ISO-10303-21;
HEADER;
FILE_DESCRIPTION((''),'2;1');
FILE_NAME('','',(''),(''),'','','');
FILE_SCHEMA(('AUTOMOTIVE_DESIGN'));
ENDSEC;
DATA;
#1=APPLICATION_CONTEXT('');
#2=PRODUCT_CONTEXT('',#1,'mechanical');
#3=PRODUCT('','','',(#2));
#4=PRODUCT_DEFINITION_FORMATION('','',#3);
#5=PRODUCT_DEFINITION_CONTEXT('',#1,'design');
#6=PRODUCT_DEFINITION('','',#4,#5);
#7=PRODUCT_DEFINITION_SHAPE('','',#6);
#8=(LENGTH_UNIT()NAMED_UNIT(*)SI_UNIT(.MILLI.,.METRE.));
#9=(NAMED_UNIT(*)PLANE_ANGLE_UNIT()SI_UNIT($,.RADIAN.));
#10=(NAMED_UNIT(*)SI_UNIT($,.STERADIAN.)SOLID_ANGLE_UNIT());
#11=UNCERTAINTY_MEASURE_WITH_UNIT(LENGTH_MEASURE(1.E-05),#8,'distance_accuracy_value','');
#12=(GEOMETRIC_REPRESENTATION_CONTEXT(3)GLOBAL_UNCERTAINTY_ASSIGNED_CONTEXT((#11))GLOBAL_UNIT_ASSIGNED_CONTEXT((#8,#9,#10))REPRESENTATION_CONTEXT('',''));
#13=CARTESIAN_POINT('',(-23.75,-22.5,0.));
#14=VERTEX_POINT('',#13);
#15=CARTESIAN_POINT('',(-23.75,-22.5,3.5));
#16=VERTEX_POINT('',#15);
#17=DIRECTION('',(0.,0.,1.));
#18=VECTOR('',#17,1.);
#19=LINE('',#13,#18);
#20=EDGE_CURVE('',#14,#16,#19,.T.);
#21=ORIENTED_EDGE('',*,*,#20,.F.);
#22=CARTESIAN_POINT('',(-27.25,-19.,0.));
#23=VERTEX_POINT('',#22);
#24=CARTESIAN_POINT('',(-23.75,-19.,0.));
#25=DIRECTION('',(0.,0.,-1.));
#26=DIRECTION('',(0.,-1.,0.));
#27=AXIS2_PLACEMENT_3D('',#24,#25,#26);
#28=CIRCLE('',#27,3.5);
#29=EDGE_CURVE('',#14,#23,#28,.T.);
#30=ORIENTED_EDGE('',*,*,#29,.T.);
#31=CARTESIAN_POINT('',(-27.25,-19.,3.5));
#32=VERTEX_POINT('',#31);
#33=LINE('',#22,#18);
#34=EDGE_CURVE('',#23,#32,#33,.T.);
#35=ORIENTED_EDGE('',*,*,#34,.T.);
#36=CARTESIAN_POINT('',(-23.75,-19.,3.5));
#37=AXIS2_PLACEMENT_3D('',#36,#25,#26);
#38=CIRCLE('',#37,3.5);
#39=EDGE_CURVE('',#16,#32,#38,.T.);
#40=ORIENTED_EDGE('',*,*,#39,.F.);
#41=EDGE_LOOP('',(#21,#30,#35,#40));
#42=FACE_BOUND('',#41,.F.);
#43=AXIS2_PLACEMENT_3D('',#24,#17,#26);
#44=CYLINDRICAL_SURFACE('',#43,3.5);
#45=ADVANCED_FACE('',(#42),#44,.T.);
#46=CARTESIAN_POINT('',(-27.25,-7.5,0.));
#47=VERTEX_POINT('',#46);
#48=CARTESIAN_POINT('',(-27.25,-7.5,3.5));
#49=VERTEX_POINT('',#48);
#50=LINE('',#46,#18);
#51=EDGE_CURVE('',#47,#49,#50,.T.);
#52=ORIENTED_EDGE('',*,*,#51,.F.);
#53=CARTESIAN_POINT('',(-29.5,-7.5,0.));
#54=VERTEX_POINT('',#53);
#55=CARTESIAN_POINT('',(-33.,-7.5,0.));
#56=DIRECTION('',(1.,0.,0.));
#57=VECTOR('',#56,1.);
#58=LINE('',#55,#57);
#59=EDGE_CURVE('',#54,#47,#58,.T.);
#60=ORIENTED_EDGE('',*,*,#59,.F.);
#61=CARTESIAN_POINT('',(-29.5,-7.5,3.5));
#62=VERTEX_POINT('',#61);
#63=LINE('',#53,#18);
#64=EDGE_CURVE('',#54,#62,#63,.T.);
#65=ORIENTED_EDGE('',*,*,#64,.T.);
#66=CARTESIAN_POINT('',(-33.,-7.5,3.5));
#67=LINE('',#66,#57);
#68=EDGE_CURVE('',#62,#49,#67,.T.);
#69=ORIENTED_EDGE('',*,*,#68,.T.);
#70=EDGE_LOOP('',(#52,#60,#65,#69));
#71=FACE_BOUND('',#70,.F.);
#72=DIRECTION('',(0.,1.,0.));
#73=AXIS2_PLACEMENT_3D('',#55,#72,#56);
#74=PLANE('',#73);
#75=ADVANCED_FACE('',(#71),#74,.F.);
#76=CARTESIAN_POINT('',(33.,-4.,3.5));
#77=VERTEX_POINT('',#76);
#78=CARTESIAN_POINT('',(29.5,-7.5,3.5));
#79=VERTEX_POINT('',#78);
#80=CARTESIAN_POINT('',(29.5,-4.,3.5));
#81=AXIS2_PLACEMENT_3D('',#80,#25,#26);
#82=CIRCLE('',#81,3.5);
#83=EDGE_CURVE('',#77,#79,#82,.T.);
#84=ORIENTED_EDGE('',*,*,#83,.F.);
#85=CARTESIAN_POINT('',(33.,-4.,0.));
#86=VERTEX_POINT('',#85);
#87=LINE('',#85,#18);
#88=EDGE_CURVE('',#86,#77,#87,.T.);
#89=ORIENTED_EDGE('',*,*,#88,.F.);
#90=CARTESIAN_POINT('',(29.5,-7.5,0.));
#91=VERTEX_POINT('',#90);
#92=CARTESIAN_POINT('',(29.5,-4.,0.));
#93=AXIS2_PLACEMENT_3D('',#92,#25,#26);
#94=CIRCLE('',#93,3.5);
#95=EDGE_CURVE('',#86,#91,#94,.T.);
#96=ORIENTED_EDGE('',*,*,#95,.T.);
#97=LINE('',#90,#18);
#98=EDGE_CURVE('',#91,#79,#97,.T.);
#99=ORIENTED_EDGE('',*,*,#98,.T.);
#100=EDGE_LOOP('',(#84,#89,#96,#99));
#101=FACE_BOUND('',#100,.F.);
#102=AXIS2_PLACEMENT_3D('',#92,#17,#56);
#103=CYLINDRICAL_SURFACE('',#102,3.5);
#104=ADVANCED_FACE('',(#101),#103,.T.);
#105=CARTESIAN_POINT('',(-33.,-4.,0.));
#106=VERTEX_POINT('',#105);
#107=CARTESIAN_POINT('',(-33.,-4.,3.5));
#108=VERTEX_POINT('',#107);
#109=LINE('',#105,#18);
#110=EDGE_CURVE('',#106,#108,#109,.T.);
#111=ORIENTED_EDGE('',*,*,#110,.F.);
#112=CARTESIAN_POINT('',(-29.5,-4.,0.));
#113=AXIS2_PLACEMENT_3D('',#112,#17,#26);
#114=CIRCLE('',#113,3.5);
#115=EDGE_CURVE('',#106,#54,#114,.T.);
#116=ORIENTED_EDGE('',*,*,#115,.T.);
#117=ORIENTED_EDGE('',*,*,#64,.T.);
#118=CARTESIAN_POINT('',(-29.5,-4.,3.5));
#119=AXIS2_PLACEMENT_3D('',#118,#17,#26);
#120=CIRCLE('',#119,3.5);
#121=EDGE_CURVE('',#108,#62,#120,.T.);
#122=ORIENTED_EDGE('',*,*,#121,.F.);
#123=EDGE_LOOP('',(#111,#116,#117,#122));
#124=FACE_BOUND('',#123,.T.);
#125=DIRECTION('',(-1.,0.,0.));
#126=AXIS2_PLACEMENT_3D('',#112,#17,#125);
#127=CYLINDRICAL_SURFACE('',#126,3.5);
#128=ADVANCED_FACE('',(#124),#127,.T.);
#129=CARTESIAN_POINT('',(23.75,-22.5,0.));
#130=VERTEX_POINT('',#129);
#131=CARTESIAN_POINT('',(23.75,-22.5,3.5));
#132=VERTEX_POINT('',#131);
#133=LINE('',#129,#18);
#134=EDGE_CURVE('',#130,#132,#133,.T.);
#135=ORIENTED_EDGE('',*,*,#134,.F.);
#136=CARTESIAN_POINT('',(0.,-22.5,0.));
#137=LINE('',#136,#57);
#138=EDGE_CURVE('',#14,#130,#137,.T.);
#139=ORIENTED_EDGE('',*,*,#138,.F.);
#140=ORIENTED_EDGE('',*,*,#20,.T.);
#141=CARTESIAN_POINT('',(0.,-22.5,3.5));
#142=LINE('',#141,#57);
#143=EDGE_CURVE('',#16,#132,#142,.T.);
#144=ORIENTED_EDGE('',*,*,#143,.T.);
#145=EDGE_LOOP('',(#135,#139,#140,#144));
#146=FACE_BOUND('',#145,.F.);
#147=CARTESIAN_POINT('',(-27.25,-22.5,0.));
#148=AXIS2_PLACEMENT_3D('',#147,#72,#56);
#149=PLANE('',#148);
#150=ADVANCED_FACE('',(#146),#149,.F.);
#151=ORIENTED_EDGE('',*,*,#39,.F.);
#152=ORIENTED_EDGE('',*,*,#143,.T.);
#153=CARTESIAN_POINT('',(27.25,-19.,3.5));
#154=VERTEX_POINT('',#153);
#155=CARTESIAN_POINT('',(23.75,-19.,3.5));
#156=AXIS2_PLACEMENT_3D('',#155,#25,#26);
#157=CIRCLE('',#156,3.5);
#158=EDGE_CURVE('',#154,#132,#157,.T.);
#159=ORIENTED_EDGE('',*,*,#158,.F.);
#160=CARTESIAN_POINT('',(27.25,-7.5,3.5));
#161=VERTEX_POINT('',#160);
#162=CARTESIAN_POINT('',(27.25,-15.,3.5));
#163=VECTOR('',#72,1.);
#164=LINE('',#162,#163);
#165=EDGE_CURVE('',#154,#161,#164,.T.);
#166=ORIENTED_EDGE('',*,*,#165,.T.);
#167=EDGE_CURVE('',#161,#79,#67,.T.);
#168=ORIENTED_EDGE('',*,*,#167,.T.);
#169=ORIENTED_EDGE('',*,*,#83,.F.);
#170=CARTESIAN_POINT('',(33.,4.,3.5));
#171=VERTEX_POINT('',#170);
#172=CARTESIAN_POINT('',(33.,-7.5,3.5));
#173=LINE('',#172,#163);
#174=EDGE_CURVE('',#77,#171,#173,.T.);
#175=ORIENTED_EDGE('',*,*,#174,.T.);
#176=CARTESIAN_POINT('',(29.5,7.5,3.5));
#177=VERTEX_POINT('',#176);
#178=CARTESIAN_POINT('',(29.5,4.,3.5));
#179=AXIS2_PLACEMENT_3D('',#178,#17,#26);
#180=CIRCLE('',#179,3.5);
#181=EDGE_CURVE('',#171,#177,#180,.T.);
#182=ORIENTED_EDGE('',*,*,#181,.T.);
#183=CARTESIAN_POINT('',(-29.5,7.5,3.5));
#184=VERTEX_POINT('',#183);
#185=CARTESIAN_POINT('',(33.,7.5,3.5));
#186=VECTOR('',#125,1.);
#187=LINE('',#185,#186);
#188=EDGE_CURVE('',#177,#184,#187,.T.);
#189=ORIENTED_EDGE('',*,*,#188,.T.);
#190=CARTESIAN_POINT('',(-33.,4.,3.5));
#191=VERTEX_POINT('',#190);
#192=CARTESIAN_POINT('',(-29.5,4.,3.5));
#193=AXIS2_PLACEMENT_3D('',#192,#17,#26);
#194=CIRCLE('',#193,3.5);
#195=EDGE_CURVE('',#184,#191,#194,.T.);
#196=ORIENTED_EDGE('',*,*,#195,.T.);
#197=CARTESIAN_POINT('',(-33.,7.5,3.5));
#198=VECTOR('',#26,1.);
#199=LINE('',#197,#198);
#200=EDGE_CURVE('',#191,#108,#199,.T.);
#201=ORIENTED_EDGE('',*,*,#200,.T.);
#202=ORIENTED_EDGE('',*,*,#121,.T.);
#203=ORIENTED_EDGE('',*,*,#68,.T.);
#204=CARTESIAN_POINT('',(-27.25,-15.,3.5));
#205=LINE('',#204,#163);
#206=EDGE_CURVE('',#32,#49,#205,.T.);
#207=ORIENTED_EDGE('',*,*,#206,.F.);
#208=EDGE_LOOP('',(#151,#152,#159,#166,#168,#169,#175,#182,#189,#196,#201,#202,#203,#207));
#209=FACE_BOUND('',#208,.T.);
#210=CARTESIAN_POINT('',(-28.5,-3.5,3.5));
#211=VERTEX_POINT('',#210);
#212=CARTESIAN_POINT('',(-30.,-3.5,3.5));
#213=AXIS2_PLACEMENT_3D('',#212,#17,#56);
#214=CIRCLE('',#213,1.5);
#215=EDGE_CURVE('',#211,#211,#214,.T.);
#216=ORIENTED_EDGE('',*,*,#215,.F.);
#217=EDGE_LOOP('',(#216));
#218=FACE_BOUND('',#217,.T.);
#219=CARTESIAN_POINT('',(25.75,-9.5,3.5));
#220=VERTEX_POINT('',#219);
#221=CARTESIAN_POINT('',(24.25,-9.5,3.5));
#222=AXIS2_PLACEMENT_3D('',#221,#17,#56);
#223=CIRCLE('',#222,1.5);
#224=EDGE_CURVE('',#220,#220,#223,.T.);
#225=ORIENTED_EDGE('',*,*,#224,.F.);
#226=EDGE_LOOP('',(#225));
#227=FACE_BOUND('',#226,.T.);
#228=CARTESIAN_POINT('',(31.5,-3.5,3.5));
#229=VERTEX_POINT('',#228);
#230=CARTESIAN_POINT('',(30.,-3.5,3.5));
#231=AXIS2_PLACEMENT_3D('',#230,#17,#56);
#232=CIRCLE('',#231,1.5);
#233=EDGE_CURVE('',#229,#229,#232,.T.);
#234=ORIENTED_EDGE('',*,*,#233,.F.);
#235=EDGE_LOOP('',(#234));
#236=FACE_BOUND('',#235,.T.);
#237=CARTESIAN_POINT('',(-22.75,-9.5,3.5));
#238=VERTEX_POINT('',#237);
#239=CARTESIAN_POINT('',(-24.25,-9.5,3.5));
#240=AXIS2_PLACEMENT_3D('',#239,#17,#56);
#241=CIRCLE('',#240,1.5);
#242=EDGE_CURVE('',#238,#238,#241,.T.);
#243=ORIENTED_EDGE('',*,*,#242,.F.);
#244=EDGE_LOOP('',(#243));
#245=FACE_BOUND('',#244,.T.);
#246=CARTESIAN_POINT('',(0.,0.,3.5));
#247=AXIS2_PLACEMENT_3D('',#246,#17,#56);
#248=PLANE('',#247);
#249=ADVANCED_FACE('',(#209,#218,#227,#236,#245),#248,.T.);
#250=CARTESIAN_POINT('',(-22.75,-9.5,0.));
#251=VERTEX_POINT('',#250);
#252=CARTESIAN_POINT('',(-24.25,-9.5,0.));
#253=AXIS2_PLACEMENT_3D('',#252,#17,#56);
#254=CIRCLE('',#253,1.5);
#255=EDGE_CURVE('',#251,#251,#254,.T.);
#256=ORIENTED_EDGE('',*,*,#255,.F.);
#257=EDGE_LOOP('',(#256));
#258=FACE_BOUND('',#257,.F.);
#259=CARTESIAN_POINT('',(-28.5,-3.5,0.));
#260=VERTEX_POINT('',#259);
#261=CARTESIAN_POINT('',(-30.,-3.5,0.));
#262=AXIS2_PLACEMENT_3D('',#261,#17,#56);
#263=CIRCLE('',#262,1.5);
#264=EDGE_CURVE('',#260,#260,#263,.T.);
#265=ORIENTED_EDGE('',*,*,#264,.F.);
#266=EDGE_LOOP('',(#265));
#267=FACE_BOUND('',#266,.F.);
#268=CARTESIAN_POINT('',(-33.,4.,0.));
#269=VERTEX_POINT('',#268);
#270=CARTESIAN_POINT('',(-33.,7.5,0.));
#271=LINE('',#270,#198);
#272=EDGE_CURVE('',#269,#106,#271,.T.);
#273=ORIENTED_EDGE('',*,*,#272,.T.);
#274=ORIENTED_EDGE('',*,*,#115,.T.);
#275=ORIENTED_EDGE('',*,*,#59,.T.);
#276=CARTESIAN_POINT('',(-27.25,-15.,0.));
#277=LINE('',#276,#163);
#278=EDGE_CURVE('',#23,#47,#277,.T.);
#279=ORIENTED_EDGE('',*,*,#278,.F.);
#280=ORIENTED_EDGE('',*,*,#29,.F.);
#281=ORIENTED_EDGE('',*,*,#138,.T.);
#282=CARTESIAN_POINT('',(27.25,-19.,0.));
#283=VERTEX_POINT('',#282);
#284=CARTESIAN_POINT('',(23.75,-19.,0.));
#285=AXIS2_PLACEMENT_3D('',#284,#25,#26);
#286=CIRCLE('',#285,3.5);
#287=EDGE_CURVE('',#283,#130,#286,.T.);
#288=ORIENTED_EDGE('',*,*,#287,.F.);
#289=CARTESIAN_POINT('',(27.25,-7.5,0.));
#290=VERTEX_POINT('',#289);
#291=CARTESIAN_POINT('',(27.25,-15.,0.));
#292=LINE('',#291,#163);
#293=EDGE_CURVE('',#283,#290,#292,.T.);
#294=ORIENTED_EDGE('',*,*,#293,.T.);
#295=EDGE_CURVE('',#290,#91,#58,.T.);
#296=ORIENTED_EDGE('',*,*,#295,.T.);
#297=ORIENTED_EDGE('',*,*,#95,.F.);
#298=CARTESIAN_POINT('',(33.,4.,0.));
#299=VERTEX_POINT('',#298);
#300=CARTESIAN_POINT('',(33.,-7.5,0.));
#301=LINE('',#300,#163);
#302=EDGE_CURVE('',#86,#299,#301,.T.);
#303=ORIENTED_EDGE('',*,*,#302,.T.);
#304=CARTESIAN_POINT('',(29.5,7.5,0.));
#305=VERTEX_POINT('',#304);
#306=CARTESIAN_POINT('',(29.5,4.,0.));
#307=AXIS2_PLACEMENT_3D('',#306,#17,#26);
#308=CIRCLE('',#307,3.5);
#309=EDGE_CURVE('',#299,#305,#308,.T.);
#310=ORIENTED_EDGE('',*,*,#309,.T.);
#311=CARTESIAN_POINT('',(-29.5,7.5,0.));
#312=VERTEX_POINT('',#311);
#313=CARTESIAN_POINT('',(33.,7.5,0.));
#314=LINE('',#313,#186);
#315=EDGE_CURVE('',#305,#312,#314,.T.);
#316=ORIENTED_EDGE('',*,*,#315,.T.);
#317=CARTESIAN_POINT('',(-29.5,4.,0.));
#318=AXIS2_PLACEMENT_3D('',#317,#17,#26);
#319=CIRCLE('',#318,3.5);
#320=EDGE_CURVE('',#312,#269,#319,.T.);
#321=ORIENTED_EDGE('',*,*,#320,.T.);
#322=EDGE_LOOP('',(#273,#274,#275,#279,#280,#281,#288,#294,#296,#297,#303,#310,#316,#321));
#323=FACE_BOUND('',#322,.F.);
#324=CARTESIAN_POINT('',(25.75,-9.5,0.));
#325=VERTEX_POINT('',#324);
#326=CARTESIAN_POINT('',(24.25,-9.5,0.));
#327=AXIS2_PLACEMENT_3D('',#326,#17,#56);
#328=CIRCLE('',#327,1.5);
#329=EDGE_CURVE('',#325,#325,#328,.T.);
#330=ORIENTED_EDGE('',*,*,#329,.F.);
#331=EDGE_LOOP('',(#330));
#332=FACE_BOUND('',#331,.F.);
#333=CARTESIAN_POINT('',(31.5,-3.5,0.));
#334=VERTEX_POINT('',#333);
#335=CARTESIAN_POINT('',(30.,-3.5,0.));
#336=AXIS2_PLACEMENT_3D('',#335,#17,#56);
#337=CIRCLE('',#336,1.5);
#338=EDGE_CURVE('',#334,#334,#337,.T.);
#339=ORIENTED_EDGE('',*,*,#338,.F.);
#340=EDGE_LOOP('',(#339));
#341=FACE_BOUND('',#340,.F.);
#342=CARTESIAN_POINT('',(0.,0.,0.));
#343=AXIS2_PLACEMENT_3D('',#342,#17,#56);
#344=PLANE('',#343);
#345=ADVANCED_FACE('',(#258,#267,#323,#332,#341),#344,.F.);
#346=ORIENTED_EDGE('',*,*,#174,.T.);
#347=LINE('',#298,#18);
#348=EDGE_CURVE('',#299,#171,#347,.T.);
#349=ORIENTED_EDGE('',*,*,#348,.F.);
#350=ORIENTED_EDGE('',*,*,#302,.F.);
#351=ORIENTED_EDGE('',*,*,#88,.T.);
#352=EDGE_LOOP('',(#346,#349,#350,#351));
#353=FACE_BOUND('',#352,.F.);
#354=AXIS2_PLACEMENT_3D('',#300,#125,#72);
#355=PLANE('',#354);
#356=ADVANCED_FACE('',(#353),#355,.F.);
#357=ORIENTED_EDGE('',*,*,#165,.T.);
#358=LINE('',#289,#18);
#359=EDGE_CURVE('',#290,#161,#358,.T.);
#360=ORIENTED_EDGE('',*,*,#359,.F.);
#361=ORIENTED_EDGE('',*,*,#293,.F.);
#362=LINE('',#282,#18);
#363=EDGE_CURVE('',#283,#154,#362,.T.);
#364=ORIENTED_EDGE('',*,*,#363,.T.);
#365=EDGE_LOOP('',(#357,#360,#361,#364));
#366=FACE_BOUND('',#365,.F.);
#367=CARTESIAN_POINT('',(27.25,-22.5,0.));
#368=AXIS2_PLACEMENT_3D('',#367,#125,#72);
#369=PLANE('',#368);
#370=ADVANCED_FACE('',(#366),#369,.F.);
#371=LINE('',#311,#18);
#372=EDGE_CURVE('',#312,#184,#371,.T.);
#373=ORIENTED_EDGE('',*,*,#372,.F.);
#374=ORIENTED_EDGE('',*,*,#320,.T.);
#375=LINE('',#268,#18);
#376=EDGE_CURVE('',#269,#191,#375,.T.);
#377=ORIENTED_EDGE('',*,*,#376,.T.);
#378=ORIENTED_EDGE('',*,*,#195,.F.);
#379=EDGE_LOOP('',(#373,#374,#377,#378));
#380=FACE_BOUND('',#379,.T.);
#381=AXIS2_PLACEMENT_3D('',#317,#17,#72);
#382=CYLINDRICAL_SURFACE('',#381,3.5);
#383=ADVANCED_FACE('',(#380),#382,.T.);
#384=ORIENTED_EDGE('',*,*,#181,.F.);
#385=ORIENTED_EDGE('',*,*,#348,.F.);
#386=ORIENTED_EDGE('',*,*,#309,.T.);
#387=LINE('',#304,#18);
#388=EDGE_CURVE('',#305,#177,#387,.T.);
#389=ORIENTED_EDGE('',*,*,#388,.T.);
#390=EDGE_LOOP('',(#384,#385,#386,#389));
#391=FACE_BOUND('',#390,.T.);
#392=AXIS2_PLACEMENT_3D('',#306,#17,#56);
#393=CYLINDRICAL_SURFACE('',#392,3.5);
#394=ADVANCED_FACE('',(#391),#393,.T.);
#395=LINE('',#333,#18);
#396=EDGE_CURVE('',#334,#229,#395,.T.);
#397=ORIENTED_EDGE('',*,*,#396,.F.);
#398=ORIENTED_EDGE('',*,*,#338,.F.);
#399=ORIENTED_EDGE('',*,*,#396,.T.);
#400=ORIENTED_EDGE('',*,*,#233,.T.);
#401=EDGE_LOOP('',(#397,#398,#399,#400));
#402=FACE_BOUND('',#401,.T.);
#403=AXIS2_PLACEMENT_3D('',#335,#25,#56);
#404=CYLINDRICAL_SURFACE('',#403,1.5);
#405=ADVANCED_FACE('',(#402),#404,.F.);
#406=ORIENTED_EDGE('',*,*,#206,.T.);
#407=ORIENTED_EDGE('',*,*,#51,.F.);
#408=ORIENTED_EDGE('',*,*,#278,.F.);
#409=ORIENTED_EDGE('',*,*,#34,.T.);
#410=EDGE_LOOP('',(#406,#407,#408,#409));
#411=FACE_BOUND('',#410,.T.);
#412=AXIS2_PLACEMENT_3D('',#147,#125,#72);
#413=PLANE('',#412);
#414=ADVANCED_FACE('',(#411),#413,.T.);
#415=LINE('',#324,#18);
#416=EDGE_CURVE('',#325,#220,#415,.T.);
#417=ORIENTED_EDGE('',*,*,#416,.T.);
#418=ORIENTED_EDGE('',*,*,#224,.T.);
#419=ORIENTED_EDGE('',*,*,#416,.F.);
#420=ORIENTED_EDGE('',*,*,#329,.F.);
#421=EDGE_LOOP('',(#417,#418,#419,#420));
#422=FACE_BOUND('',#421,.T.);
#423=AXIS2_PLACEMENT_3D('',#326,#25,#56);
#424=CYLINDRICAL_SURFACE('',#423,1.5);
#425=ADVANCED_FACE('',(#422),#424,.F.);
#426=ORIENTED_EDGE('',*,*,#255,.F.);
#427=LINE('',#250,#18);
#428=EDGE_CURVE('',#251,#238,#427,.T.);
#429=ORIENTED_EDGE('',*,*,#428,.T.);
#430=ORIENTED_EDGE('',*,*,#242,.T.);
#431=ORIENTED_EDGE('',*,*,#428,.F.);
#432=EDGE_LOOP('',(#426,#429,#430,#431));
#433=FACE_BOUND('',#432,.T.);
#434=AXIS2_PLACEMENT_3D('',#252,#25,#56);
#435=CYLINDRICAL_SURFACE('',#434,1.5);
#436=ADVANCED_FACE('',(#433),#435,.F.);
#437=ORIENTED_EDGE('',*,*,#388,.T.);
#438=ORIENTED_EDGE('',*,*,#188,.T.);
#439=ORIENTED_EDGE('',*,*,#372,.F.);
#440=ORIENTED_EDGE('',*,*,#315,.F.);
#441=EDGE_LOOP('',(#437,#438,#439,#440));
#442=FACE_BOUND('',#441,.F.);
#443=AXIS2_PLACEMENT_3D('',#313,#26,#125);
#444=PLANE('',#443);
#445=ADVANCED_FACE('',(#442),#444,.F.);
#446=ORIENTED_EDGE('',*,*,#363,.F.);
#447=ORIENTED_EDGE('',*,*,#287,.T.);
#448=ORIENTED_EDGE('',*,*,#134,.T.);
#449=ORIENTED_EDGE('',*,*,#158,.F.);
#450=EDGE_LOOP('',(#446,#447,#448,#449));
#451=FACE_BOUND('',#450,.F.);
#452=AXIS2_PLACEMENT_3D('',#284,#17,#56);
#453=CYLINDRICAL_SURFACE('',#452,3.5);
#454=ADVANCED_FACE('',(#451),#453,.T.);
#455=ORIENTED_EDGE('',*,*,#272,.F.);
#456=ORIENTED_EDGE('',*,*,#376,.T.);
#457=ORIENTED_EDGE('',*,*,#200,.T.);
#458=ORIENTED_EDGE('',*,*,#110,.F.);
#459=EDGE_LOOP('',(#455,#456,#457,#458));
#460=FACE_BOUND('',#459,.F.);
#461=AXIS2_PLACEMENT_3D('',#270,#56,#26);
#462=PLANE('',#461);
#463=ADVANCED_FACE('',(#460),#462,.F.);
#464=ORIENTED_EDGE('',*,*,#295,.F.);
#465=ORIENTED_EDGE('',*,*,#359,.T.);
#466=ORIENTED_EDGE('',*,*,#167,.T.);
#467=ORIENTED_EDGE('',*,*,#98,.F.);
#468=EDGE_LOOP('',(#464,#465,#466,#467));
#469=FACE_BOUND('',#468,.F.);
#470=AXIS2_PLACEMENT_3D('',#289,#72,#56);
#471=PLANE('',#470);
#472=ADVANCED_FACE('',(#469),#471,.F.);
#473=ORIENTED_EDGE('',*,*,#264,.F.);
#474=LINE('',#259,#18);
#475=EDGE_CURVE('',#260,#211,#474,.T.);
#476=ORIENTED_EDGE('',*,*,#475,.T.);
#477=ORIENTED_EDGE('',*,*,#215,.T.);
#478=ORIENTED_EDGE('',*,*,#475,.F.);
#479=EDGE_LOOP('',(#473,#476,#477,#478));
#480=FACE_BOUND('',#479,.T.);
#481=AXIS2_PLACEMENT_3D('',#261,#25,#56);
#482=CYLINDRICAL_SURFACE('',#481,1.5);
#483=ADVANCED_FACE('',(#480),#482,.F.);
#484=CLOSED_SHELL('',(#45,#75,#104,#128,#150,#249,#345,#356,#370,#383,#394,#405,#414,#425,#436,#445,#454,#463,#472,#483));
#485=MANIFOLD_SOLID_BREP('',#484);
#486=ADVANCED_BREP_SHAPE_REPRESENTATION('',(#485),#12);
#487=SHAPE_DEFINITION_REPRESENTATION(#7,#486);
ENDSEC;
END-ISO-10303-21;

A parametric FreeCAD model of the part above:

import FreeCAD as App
import Part
import Sketcher
from FreeCAD import Vector


def edges_at(feature, points):
    """Names of the edges that pass closest to the given points."""
    edges = feature.Shape.Edges
    near = lambda p: min(range(len(edges)), key=lambda i: edges[i].distToShape(Part.Vertex(*p))[0])
    return sorted({f"Edge{near(p) + 1}" for p in points})


def add_polygon(sketch, points):
    """Adds a closed chain of lines whose ends are joined by coincident constraints."""
    first, n = sketch.GeometryCount, len(points)
    for a, b in zip(points, points[1:] + points[:1]):
        sketch.addGeometry(Part.LineSegment(App.Vector(*a, 0), App.Vector(*b, 0)), False)
    for i in range(n):
        sketch.addConstraint(Sketcher.Constraint("Coincident", first + i, 2, first + (i + 1) % n, 1))

doc = App.newDocument("Part")
params = doc.addObject("Spreadsheet::Sheet", "Params")
for row, (alias, value) in enumerate([
    ("sketch1_diameter", "3 mm"),
    ("sketch1_width", "66 mm"),
    ("sketch1_height", "15 mm"),
    ("sketch1_width2", "54.5 mm"),
    ("pad1_length", "3.5 mm"),
    ("fillet_radius", "3.5 mm"),
], start=1):
    params.set(f"A{row}", alias)
    params.set(f"B{row}", "=" + value)
    params.setAlias(f"B{row}", alias)

body = doc.addObject("PartDesign::Body", "Body")

sketch1 = body.newObject("Sketcher::SketchObject", "Sketch")
sketch1.AttachmentSupport = (doc.getObject("XY_Plane"), [""])
sketch1.MapMode = "FlatFace"
add_polygon(sketch1, [(33, -7.5), (33, 7.5), (-33, 7.5), (-33, -7.5), (-27.2, -7.5), (-27.2, -22.5), (27.2, -22.5), (27.2, -7.5)])
sketch1.addGeometry(Part.Circle(Vector(-24.2, -9.5, 0), Vector(0, 0, 1), 1.5), False)
sketch1.addGeometry(Part.Circle(Vector(24.2, -9.5, 0), Vector(0, 0, 1), 1.5), False)
sketch1.addGeometry(Part.Circle(Vector(-30, -3.5, 0), Vector(0, 0, 1), 1.5), False)
sketch1.addGeometry(Part.Circle(Vector(30, -3.5, 0), Vector(0, 0, 1), 1.5), False)
sketch1.addConstraint(Sketcher.Constraint("Vertical", 0))
sketch1.addConstraint(Sketcher.Constraint("Horizontal", 1))
sketch1.addConstraint(Sketcher.Constraint("Vertical", 2))
sketch1.addConstraint(Sketcher.Constraint("Horizontal", 3))
sketch1.addConstraint(Sketcher.Constraint("Vertical", 4))
sketch1.addConstraint(Sketcher.Constraint("Horizontal", 5))
sketch1.addConstraint(Sketcher.Constraint("Vertical", 6))
sketch1.addConstraint(Sketcher.Constraint("Horizontal", 7))
sketch1.addConstraint(Sketcher.Constraint("Equal", 8, 9))
sketch1.addConstraint(Sketcher.Constraint("Equal", 9, 10))
sketch1.addConstraint(Sketcher.Constraint("Equal", 10, 11))
sketch1.addConstraint(Sketcher.Constraint("Symmetric", 0, 2, 2, 2, -1, 1))
sketch1.addConstraint(Sketcher.Constraint("Symmetric", 8, 3, 9, 3, -2))
sketch1.addConstraint(Sketcher.Constraint("Symmetric", 10, 3, 11, 3, -2))
sketch1.addConstraint(Sketcher.Constraint("Symmetric", 3, 2, 6, 2, -2))
sketch1.addConstraint(Sketcher.Constraint("Equal", 2, 4))
sketch1.addConstraint(Sketcher.Constraint("Diameter", 8, 3.0))
sketch1.addConstraint(Sketcher.Constraint("DistanceX", 1, 2, 1, 1, 66.0))
sketch1.addConstraint(Sketcher.Constraint("DistanceY", 0, 1, 0, 2, 15.0))
sketch1.addConstraint(Sketcher.Constraint("DistanceX", 5, 1, 5, 2, 54.5))
sketch1.addConstraint(Sketcher.Constraint("DistanceX", 10, 3, -1, 1, 30.0))
sketch1.addConstraint(Sketcher.Constraint("DistanceY", 8, 3, 10, 3, 6.0))
sketch1.addConstraint(Sketcher.Constraint("DistanceY", 11, 3, 0, 2, 11.0))
sketch1.addConstraint(Sketcher.Constraint("DistanceX", 3, 2, 8, 3, 3.0))
sketch1.setExpression("Constraints[24]", "Params.sketch1_diameter")
sketch1.setExpression("Constraints[25]", "Params.sketch1_width")
sketch1.setExpression("Constraints[26]", "Params.sketch1_height")
sketch1.setExpression("Constraints[27]", "Params.sketch1_width2")
pad1 = body.newObject("PartDesign::Pad", "Pad")
pad1.Profile = sketch1
pad1.setExpression("Length", "Params.pad1_length")
doc.recompute()

fillet = body.newObject("PartDesign::Fillet", "Fillet")
fillet.Base = (pad1, edges_at(pad1, [
    (-33, 7.5, 1.75),
    (33, 7.5, 1.75),
    (27.25, -22.5, 1.75),
    (-27.25, -22.5, 1.75),
    (33, -7.5, 1.75),
    (-33, -7.5, 1.75),
]))
fillet.setExpression("Radius", "Params.fillet_radius")

doc.recompute()
